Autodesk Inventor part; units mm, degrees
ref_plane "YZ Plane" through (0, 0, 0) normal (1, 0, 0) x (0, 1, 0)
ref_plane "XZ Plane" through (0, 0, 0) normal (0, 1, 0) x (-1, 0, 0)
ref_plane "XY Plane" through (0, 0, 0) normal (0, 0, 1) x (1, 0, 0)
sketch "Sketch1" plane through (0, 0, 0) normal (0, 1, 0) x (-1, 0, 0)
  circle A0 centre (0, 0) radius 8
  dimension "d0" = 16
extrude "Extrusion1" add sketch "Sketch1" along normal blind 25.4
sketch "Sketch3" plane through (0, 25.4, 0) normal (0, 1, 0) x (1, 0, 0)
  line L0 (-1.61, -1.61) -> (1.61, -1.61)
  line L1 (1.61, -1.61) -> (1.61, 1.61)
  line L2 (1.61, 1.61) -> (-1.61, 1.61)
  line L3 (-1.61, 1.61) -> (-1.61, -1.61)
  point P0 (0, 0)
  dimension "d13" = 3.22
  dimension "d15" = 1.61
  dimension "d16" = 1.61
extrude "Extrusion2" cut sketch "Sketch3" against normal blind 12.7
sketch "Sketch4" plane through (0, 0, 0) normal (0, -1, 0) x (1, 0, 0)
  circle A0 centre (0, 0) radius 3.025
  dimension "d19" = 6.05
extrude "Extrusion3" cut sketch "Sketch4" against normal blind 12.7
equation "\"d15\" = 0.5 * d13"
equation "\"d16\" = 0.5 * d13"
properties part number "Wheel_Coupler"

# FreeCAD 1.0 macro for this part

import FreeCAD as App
import Part
import Sketcher
from FreeCAD import Vector
Q = App.Units.Quantity

doc = App.newDocument("Part")
body = doc.addObject("PartDesign::Body", "Body")

# Sketch on XZ plane
sketch1 = body.newObject("Sketcher::SketchObject", "Sketch")
sketch1.AttachmentSupport = (doc.getObject("XZ_Plane"), [""])
sketch1.MapMode = "FlatFace"
sketch1.addGeometry(Part.Circle(Vector(0, 0, 0), Vector(0, 0, 1), 8), False)
sketch1.addConstraint(Sketcher.Constraint("Coincident", 0, 3, -1, 1))
sketch1.addConstraint(Sketcher.Constraint("Diameter", 0, 16.0))
pad1 = body.newObject("PartDesign::Pad", "Pad")
pad1.Profile = sketch1
pad1.Length = Q("1 in")
pad1.Reversed = True

# Sketch on XZ plane
sketch2 = body.newObject("Sketcher::SketchObject", "Sketch001")
sketch2.AttachmentSupport = (doc.getObject("XZ_Plane"), [""])
sketch2.MapMode = "FlatFace"
sketch2.AttachmentOffset = App.Placement(Vector(0, 0, -1 * 25.4), App.Rotation())
sketch2.addGeometry(Part.LineSegment(Vector(-1.61, -1.61, 0), Vector(-1.61, 1.61, 0)), False)
sketch2.addGeometry(Part.LineSegment(Vector(-1.61, 1.61, 0), Vector(1.61, 1.61, 0)), False)
sketch2.addGeometry(Part.LineSegment(Vector(1.61, 1.61, 0), Vector(1.61, -1.61, 0)), False)
sketch2.addGeometry(Part.LineSegment(Vector(1.61, -1.61, 0), Vector(-1.61, -1.61, 0)), False)
sketch2.addConstraint(Sketcher.Constraint("Coincident", 0, 2, 1, 1))
sketch2.addConstraint(Sketcher.Constraint("Coincident", 1, 2, 2, 1))
sketch2.addConstraint(Sketcher.Constraint("Coincident", 2, 2, 3, 1))
sketch2.addConstraint(Sketcher.Constraint("Coincident", 3, 2, 0, 1))
sketch2.addConstraint(Sketcher.Constraint("Vertical", 0))
sketch2.addConstraint(Sketcher.Constraint("Horizontal", 1))
sketch2.addConstraint(Sketcher.Constraint("Vertical", 2))
sketch2.addConstraint(Sketcher.Constraint("Horizontal", 3))
sketch2.addConstraint(Sketcher.Constraint("Symmetric", 0, 2, 2, 2, -1, 1))
sketch2.addConstraint(Sketcher.Constraint("Equal", 3, 0))
sketch2.addConstraint(Sketcher.Constraint("DistanceX", 1, 1, 1, 2, 3.22))
pocket1 = body.newObject("PartDesign::Pocket", "Pocket")
pocket1.Profile = sketch2
pocket1.Length = Q("0.5 in")
pocket1.Reversed = True

# Sketch on XZ plane
sketch3 = body.newObject("Sketcher::SketchObject", "Sketch002")
sketch3.AttachmentSupport = (doc.getObject("XZ_Plane"), [""])
sketch3.MapMode = "FlatFace"
sketch3.addGeometry(Part.Circle(Vector(0, 0, 0), Vector(0, 0, 1), 3.025), False)
sketch3.addConstraint(Sketcher.Constraint("Coincident", 0, 3, -1, 1))
sketch3.addConstraint(Sketcher.Constraint("Diameter", 0, Q("0.2382 in")))
pocket2 = body.newObject("PartDesign::Pocket", "Pocket001")
pocket2.Profile = sketch3
pocket2.Length = Q("0.5 in")

doc.recompute()
